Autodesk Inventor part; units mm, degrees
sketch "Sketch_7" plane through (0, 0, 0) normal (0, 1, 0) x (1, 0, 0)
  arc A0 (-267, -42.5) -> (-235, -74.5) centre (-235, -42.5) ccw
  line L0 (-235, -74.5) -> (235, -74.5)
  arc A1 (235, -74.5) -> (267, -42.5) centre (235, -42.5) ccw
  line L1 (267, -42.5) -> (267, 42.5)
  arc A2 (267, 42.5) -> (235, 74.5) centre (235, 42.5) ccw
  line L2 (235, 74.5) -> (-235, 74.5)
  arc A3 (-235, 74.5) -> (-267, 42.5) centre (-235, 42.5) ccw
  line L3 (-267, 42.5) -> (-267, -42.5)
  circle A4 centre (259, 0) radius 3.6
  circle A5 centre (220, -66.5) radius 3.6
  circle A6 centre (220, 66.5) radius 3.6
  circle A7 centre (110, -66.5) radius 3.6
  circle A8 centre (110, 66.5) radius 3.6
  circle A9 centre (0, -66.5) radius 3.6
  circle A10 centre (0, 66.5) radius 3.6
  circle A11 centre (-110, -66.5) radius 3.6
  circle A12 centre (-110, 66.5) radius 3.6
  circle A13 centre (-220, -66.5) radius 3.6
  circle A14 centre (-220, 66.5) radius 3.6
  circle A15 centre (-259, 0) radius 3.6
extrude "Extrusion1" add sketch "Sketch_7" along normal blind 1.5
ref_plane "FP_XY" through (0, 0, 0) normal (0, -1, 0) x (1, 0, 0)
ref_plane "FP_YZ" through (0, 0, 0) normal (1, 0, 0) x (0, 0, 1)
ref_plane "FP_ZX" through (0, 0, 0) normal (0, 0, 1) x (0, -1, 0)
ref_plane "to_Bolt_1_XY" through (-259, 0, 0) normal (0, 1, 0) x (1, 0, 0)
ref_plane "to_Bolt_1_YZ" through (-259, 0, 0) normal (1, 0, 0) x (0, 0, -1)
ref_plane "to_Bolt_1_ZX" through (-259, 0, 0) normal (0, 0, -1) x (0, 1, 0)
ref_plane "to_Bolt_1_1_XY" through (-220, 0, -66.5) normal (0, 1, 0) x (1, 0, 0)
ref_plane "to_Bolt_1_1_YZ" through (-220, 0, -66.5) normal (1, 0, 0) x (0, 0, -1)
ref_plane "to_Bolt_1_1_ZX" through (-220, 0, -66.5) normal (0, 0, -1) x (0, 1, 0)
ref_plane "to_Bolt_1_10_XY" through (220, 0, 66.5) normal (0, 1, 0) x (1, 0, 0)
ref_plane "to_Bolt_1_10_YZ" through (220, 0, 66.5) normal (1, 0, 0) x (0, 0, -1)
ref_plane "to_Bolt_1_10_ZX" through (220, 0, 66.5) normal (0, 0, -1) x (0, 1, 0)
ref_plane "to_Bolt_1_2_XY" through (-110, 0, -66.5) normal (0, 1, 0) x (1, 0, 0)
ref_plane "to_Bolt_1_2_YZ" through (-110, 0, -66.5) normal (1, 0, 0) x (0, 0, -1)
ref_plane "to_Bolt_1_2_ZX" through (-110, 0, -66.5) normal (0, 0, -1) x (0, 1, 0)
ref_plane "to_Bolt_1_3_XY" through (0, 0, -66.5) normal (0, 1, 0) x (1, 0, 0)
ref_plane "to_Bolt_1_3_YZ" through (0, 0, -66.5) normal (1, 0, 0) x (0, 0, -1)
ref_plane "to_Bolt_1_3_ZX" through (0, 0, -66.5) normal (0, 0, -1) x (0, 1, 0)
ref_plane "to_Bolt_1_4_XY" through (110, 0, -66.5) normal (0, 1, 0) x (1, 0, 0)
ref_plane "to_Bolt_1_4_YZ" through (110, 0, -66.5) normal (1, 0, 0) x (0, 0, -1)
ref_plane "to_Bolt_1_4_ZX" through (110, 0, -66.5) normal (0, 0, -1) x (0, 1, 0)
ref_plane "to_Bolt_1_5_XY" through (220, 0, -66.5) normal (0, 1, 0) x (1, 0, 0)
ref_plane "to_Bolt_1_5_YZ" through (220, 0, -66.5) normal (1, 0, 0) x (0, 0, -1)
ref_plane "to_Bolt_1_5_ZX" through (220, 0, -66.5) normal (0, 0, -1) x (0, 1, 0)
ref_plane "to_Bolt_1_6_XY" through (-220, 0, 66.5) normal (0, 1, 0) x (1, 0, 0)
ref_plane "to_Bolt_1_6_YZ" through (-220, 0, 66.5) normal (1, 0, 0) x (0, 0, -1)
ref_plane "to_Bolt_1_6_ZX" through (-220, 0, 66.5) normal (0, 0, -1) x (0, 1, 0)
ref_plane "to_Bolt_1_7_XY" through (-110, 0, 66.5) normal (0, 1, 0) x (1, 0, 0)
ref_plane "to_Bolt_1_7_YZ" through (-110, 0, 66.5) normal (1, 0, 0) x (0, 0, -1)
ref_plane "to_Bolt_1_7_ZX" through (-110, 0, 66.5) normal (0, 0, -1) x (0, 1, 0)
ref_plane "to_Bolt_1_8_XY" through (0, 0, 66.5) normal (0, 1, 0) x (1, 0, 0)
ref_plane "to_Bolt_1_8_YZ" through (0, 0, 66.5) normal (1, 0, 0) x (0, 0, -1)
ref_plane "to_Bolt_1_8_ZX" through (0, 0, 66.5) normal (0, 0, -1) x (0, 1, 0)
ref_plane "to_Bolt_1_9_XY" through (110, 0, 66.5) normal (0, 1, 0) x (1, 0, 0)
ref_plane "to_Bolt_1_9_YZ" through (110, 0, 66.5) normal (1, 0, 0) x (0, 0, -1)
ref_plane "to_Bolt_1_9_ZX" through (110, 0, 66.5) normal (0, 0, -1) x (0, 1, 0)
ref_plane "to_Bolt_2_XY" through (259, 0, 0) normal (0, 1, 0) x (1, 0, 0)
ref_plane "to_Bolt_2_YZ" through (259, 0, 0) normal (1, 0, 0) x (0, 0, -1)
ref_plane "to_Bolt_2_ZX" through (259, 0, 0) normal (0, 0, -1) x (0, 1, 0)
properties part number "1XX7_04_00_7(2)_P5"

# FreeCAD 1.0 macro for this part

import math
import FreeCAD as App
import Part
import Sketcher

V = App.Vector
Q = App.Units.Quantity

doc = App.newDocument("Part")
body = doc.addObject("PartDesign::Body", "Body")

sketch1 = body.newObject("Sketcher::SketchObject", "Sketch")
sketch1.AttachmentSupport = (doc.getObject("XZ_Plane"), [""])
sketch1.MapMode = "FlatFace"
sketch1.addGeometry(Part.LineSegment(V(-267, -42.5, 0), V(-267, 42.5, 0)), False)
sketch1.addGeometry(Part.ArcOfCircle(Part.Circle(V(-235, 42.5, 0), V(0, 0, 1), 32), math.radians(90), math.radians(180)), False)
sketch1.addGeometry(Part.LineSegment(V(-235, 74.5, 0), V(235, 74.5, 0)), False)
sketch1.addGeometry(Part.ArcOfCircle(Part.Circle(V(235, 42.5, 0), V(0, 0, 1), 32), math.radians(0), math.radians(90)), False)
sketch1.addGeometry(Part.LineSegment(V(267, 42.5, 0), V(267, -42.5, 0)), False)
sketch1.addGeometry(Part.ArcOfCircle(Part.Circle(V(235, -42.5, 0), V(0, 0, 1), 32), math.radians(-90), math.radians(0)), False)
sketch1.addGeometry(Part.LineSegment(V(235, -74.5, 0), V(-235, -74.5, 0)), False)
sketch1.addGeometry(Part.ArcOfCircle(Part.Circle(V(-235, -42.5, 0), V(0, 0, 1), 32), math.radians(180), math.radians(270)), False)
sketch1.addGeometry(Part.Circle(V(-220, 66.5, 0), V(0, 0, 1), 3.6), False)
sketch1.addGeometry(Part.Circle(V(-110, 66.5, 0), V(0, 0, 1), 3.6), False)
sketch1.addGeometry(Part.Circle(V(0, 66.5, 0), V(0, 0, 1), 3.6), False)
sketch1.addGeometry(Part.Circle(V(110, 66.5, 0), V(0, 0, 1), 3.6), False)
sketch1.addGeometry(Part.Circle(V(220, 66.5, 0), V(0, 0, 1), 3.6), False)
sketch1.addGeometry(Part.Circle(V(-259, 0, 0), V(0, 0, 1), 3.6), False)
sketch1.addGeometry(Part.Circle(V(-220, -66.5, 0), V(0, 0, 1), 3.6), False)
sketch1.addGeometry(Part.Circle(V(-110, -66.5, 0), V(0, 0, 1), 3.6), False)
sketch1.addGeometry(Part.Circle(V(259, 0, 0), V(0, 0, 1), 3.6), False)
sketch1.addGeometry(Part.Circle(V(0, -66.5, 0), V(0, 0, 1), 3.6), False)
sketch1.addGeometry(Part.Circle(V(110, -66.5, 0), V(0, 0, 1), 3.6), False)
sketch1.addGeometry(Part.Circle(V(220, -66.5, 0), V(0, 0, 1), 3.6), False)
sketch1.addConstraint(Sketcher.Constraint("Tangent", 0, 2, 1, 2))
sketch1.addConstraint(Sketcher.Constraint("Tangent", 1, 1, 2, 1))
sketch1.addConstraint(Sketcher.Constraint("Tangent", 2, 2, 3, 2))
sketch1.addConstraint(Sketcher.Constraint("Tangent", 3, 1, 4, 1))
sketch1.addConstraint(Sketcher.Constraint("Tangent", 4, 2, 5, 2))
sketch1.addConstraint(Sketcher.Constraint("Tangent", 5, 1, 6, 1))
sketch1.addConstraint(Sketcher.Constraint("Tangent", 6, 2, 7, 2))
sketch1.addConstraint(Sketcher.Constraint("Tangent", 7, 1, 0, 1))
sketch1.addConstraint(Sketcher.Constraint("Vertical", 0))
sketch1.addConstraint(Sketcher.Constraint("Horizontal", 2))
sketch1.addConstraint(Sketcher.Constraint("Vertical", 4))
sketch1.addConstraint(Sketcher.Constraint("Horizontal", 6))
sketch1.addConstraint(Sketcher.Constraint("Equal", 1, 3))
sketch1.addConstraint(Sketcher.Constraint("Equal", 3, 5))
sketch1.addConstraint(Sketcher.Constraint("Equal", 5, 7))
sketch1.addConstraint(Sketcher.Constraint("Equal", 8, 9))
sketch1.addConstraint(Sketcher.Constraint("Equal", 9, 10))
sketch1.addConstraint(Sketcher.Constraint("Equal", 10, 11))
sketch1.addConstraint(Sketcher.Constraint("Equal", 11, 12))
sketch1.addConstraint(Sketcher.Constraint("Equal", 12, 13))
sketch1.addConstraint(Sketcher.Constraint("Equal", 13, 14))
sketch1.addConstraint(Sketcher.Constraint("Equal", 14, 15))
sketch1.addConstraint(Sketcher.Constraint("Equal", 15, 16))
sketch1.addConstraint(Sketcher.Constraint("Equal", 16, 17))
sketch1.addConstraint(Sketcher.Constraint("Equal", 17, 18))
sketch1.addConstraint(Sketcher.Constraint("Equal", 18, 19))
sketch1.addConstraint(Sketcher.Constraint("Symmetric", 1, 3, 5, 3, -1, 1))
sketch1.addConstraint(Sketcher.Constraint("Symmetric", 12, 3, 14, 3, -1, 1))
sketch1.addConstraint(Sketcher.Constraint("Symmetric", 11, 3, 15, 3, -1, 1))
sketch1.addConstraint(Sketcher.Constraint("Symmetric", 13, 3, 16, 3, -1, 1))
sketch1.addConstraint(Sketcher.Constraint("Symmetric", 10, 3, 17, 3, -1, 1))
sketch1.addConstraint(Sketcher.Constraint("Symmetric", 9, 3, 18, 3, -1, 1))
sketch1.addConstraint(Sketcher.Constraint("Symmetric", 8, 3, 19, 3, -1, 1))
sketch1.addConstraint(Sketcher.Constraint("Symmetric", 9, 3, 11, 3, -2))
sketch1.addConstraint(Sketcher.Constraint("Symmetric", 8, 3, 12, 3, -2))
sketch1.addConstraint(Sketcher.Constraint("PointOnObject", 10, 3, -2))
sketch1.addConstraint(Sketcher.Constraint("PointOnObject", 13, 3, -1))
sketch1.addConstraint(Sketcher.Constraint("Horizontal", 8, 3, 9, 3))
sketch1.addConstraint(Sketcher.Constraint("Horizontal", 9, 3, 10, 3))
sketch1.addConstraint(Sketcher.Constraint("Radius", 1, Q("32 mm")))
sketch1.addConstraint(Sketcher.Constraint("Diameter", 8, Q("7.2 mm")))
sketch1.addConstraint(Sketcher.Constraint("DistanceX", 2, 1, 2, 2, Q("470 mm")))
sketch1.addConstraint(Sketcher.Constraint("DistanceY", 0, 1, 0, 2, Q("85 mm")))
sketch1.addConstraint(Sketcher.Constraint("DistanceX", 8, 3, -1, 1, Q("220 mm")))
sketch1.addConstraint(Sketcher.Constraint("DistanceX", 9, 3, -1, 1, Q("110 mm")))
sketch1.addConstraint(Sketcher.Constraint("DistanceX", 13, 3, -1, 1, Q("259 mm")))
sketch1.addConstraint(Sketcher.Constraint("DistanceY", 1, 3, 8, 3, Q("24 mm")))
pad1 = body.newObject("PartDesign::Pad", "Pad")
pad1.Profile = sketch1
pad1.Length = 1.5
pad1.Reversed = True

doc.recompute()
